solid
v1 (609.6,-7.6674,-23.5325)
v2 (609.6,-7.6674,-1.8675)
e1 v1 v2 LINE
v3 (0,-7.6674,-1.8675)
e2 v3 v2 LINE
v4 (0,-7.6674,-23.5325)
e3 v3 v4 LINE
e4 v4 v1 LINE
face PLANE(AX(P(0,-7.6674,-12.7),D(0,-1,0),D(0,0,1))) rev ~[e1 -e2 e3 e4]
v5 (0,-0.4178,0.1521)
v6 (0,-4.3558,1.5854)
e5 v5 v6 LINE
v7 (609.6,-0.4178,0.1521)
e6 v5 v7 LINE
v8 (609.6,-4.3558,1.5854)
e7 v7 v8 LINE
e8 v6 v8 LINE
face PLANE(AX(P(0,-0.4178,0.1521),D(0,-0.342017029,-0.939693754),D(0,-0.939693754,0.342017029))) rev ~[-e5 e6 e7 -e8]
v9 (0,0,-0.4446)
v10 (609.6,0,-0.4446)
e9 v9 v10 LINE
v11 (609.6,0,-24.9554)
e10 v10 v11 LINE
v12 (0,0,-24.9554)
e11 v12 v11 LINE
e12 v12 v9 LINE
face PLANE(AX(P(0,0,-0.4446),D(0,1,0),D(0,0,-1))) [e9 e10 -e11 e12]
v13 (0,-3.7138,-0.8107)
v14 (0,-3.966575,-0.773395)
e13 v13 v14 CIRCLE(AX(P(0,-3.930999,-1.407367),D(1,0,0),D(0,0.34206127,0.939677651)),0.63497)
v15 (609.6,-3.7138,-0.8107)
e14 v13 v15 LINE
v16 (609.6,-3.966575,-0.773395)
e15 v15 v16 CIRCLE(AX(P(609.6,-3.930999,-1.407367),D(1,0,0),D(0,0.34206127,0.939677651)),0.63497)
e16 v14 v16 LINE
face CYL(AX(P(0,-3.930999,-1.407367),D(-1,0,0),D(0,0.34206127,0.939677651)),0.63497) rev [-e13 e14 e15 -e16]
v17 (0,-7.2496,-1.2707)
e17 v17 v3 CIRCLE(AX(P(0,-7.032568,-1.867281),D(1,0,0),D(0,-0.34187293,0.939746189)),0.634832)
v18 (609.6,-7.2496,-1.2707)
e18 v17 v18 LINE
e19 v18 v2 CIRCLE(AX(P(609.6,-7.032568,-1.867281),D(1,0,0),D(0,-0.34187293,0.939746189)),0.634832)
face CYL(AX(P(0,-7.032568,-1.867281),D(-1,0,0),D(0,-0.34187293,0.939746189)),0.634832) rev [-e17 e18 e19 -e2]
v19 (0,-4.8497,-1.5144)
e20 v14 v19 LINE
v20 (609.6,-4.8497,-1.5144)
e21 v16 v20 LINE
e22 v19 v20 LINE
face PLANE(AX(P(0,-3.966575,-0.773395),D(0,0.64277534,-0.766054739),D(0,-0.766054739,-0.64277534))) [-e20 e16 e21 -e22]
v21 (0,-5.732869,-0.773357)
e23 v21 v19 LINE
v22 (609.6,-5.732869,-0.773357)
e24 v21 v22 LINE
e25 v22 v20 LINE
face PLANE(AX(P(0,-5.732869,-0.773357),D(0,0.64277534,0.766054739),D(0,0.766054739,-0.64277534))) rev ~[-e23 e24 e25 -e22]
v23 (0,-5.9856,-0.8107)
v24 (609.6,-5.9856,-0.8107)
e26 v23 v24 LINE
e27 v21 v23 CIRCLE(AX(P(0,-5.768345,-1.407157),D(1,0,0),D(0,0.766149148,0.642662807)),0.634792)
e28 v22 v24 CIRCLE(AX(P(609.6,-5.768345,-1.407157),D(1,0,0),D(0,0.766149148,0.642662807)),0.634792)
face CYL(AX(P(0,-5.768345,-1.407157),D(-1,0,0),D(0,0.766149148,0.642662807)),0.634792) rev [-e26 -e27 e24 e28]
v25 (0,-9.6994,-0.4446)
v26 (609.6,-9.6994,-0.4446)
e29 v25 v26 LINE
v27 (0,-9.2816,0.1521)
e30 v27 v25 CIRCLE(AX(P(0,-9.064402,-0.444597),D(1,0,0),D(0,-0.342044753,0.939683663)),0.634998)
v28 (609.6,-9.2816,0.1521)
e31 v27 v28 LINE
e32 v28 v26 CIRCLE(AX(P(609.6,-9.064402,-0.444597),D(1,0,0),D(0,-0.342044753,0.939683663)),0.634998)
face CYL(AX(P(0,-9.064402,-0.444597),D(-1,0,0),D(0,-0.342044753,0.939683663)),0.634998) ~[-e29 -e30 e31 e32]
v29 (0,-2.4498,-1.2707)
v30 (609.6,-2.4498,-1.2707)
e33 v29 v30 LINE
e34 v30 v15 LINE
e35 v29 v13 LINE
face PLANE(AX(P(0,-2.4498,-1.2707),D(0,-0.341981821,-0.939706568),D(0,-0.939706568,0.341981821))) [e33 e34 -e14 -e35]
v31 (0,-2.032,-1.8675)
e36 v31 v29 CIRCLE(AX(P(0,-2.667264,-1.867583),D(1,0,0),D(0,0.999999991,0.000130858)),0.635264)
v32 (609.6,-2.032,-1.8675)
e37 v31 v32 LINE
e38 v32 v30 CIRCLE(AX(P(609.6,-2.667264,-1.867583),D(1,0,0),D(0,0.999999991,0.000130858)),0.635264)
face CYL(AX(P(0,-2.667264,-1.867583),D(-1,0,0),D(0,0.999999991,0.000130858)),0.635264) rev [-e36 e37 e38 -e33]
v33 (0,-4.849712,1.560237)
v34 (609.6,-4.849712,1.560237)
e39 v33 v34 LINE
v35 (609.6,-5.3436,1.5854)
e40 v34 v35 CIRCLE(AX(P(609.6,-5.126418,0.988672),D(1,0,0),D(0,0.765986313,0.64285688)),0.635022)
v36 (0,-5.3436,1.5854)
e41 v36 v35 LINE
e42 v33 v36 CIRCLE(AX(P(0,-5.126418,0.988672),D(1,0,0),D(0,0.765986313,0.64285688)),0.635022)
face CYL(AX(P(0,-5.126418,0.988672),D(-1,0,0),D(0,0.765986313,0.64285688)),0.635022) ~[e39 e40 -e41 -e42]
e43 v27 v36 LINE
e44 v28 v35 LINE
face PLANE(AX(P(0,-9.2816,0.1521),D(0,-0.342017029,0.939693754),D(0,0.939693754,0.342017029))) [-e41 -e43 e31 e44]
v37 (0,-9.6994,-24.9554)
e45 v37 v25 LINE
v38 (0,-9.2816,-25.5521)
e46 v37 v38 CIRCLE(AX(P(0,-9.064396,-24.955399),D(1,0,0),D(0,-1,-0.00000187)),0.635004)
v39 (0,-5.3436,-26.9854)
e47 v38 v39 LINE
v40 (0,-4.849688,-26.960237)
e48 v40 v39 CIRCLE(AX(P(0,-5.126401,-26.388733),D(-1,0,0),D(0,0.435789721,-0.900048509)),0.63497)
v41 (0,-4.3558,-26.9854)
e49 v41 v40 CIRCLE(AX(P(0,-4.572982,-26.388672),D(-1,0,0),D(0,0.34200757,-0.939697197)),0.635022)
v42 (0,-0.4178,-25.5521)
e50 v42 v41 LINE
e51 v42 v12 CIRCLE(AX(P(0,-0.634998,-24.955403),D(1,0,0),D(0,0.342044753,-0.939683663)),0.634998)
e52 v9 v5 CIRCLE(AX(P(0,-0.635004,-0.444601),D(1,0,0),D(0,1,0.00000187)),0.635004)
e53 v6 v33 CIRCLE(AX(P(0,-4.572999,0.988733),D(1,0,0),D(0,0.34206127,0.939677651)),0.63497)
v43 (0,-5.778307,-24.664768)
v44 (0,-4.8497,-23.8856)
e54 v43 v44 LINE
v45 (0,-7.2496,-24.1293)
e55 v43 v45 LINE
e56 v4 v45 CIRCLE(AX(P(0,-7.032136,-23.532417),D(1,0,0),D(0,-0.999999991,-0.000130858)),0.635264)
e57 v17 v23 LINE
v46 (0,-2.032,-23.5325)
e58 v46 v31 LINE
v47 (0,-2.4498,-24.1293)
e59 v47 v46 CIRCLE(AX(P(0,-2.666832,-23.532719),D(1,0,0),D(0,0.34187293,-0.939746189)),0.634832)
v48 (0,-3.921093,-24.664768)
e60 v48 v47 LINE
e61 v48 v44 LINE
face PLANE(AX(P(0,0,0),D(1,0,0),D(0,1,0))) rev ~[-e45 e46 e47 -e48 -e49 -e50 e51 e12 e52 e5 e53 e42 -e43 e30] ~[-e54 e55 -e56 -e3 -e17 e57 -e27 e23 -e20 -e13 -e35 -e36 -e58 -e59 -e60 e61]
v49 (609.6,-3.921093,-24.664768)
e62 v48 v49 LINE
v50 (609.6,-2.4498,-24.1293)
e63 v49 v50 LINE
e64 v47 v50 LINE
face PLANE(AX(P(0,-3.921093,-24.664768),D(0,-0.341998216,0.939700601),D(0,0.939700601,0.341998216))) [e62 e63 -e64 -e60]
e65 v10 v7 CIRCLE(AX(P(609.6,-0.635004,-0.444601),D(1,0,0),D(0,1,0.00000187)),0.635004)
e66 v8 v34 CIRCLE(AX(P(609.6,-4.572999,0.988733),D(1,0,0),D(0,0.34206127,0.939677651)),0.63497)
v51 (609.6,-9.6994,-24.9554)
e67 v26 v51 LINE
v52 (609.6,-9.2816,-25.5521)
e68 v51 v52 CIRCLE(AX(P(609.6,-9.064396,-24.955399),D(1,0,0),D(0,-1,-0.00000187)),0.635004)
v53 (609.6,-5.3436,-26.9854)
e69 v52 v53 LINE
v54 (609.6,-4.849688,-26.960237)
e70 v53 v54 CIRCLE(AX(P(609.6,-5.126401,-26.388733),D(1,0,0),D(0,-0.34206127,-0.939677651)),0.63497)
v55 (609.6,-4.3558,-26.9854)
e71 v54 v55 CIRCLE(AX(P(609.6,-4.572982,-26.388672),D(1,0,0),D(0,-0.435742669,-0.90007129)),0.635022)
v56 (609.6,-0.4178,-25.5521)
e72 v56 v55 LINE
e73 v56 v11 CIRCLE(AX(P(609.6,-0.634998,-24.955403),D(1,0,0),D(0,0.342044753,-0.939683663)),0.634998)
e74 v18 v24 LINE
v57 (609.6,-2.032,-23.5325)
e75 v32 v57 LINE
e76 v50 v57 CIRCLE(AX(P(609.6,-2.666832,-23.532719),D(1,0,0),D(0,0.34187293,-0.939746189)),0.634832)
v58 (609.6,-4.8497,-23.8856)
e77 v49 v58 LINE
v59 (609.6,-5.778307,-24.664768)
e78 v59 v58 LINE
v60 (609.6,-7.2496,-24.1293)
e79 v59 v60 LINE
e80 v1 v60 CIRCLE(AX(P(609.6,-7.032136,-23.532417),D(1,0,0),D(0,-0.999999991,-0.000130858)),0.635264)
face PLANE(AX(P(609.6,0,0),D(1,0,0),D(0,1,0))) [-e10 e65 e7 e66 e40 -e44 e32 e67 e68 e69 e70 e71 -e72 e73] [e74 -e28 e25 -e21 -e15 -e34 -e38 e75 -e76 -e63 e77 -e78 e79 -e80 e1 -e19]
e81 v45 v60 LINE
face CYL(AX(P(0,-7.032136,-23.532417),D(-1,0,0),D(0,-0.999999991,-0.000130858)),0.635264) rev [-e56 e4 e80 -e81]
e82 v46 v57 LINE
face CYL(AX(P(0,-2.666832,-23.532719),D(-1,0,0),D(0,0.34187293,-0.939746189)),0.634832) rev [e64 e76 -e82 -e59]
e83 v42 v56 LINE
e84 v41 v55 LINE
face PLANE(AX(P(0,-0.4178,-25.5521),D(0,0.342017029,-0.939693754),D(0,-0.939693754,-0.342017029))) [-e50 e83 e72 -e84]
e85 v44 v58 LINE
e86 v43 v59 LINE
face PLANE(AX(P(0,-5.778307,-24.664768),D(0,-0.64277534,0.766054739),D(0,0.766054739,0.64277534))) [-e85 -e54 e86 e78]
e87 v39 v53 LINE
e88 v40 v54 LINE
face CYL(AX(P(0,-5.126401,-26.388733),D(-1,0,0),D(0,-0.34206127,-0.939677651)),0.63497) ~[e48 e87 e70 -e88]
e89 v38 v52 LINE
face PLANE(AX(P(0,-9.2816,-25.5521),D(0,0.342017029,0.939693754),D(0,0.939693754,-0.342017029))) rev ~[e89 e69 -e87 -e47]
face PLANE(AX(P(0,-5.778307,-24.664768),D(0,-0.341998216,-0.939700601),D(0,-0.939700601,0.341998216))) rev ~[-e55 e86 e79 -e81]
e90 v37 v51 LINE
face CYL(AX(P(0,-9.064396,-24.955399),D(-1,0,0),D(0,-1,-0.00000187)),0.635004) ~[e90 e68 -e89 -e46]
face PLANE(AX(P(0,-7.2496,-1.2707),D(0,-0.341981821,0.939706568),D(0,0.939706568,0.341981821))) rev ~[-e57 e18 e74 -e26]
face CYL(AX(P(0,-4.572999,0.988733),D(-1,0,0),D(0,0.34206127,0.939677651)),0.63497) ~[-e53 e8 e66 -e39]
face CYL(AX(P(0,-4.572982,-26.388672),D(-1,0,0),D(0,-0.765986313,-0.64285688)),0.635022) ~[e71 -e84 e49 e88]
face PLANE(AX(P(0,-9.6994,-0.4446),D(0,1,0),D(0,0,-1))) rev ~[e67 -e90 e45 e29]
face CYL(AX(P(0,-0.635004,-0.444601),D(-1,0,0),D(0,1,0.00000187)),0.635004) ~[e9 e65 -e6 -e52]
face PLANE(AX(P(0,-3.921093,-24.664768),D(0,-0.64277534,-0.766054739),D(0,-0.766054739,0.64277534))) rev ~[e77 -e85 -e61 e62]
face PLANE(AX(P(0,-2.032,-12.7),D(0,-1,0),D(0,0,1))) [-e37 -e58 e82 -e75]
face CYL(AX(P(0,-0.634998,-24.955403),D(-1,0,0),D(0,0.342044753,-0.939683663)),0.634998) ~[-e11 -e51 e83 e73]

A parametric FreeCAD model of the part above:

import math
import FreeCAD as App
import Part
import Sketcher
Q = App.Units.Quantity

doc = App.newDocument("Part")
body = doc.addObject("PartDesign::Body", "Body")

# Sketch on YZ plane
sketch1 = body.newObject("Sketcher::SketchObject", "Sketch")
sketch1.AttachmentSupport = (doc.getObject("YZ_Plane"), [""])
sketch1.MapMode = "FlatFace"
sketch1.addGeometry([
    Part.ArcOfCircle(Part.Circle(App.Vector(-0.635, -0.4446, 0), App.Vector(0, 0, 1), 0.635), math.radians(0), math.radians(69.998392)),  # 0
    Part.LineSegment(App.Vector(-0.4178, 0.1521, 0), App.Vector(-4.3558, 1.5854, 0)),  # 1
    Part.ArcOfCircle(Part.Circle(App.Vector(-4.573, 0.9887, 0), App.Vector(0, 0, 1), 0.635001), math.radians(69.998392), math.radians(115.834135)),  # 2
    Part.ArcOfCircle(Part.Circle(App.Vector(-5.1264, 0.9887, 0), App.Vector(0, 0, 1), 0.63499), math.radians(64.167787), math.radians(110.001608)),  # 3
    Part.LineSegment(App.Vector(-5.3436, 1.5854, 0), App.Vector(-9.2816, 0.1521, 0)),  # 4
    Part.ArcOfCircle(Part.Circle(App.Vector(-9.0644, -0.4446, 0), App.Vector(0, 0, 1), 0.635001), math.radians(110.001608), math.radians(180)),  # 5
    Part.LineSegment(App.Vector(-9.6994, -0.4446, 0), App.Vector(-9.6994, -24.9554, 0)),  # 6
    Part.ArcOfCircle(Part.Circle(App.Vector(-9.0644, -24.9554, 0), App.Vector(0, 0, 1), 0.635), math.radians(180), math.radians(249.998392)),  # 7
    Part.LineSegment(App.Vector(-9.2816, -25.5521, 0), App.Vector(-5.3436, -26.9854, 0)),  # 8
    Part.ArcOfCircle(Part.Circle(App.Vector(-5.1264, -26.3887, 0), App.Vector(0, 0, 1), 0.635001), math.radians(-110.001608), math.radians(-64.165865)),  # 9
    Part.ArcOfCircle(Part.Circle(App.Vector(-4.573, -26.3887, 0), App.Vector(0, 0, 1), 0.63499), math.radians(-115.832213), math.radians(-69.998392)),  # 10
    Part.LineSegment(App.Vector(-4.3558, -26.9854, 0), App.Vector(-0.4178, -25.5521, 0)),  # 11
    Part.ArcOfCircle(Part.Circle(App.Vector(-0.635, -24.9554, 0), App.Vector(0, 0, 1), 0.635001), math.radians(-69.998392), math.radians(0)),  # 12
    Part.LineSegment(App.Vector(0, -24.9554, 0), App.Vector(0, -0.4446, 0)),  # 13
    Part.LineSegment(App.Vector(-2.032, -1.8675, 0), App.Vector(-2.032, -23.5325, 0)),  # 14
    Part.ArcOfCircle(Part.Circle(App.Vector(-2.667, -23.5325, 0), App.Vector(0, 0, 1), 0.635095), math.radians(-70.001478), math.radians(0)),  # 15
    Part.LineSegment(App.Vector(-2.4498, -24.1293, 0), App.Vector(-3.921093, -24.664768, 0)),  # 16
    Part.LineSegment(App.Vector(-3.921093, -24.664768, 0), App.Vector(-4.8497, -23.8856, 0)),  # 17
    Part.LineSegment(App.Vector(-4.8497, -23.8856, 0), App.Vector(-5.778307, -24.664768, 0)),  # 18
    Part.LineSegment(App.Vector(-5.778307, -24.664768, 0), App.Vector(-7.2496, -24.1293, 0)),  # 19
    Part.ArcOfCircle(Part.Circle(App.Vector(-7.0324, -23.5325, 0), App.Vector(0, 0, 1), 0.635), math.radians(180), math.radians(250.001478)),  # 20
    Part.LineSegment(App.Vector(-7.6674, -23.5325, 0), App.Vector(-7.6674, -1.8675, 0)),  # 21
    Part.ArcOfCircle(Part.Circle(App.Vector(-7.0324, -1.8675, 0), App.Vector(0, 0, 1), 0.635095), math.radians(109.998522), math.radians(180)),  # 22
    Part.LineSegment(App.Vector(-7.2496, -1.2707, 0), App.Vector(-5.9856, -0.8107, 0)),  # 23
    Part.ArcOfCircle(Part.Circle(App.Vector(-5.7685, -1.4074, 0), App.Vector(0, 0, 1), 0.635067), math.radians(86.783556), math.radians(109.993129)),  # 24
    Part.LineSegment(App.Vector(-5.732869, -0.773357, 0), App.Vector(-4.8497, -1.5144, 0)),  # 25
    Part.LineSegment(App.Vector(-4.8497, -1.5144, 0), App.Vector(-3.966575, -0.773395, 0)),  # 26
    Part.ArcOfCircle(Part.Circle(App.Vector(-3.931, -1.4074, 0), App.Vector(0, 0, 1), 0.635001), math.radians(69.998392), math.radians(93.211622)),  # 27
    Part.LineSegment(App.Vector(-3.7138, -0.8107, 0), App.Vector(-2.4498, -1.2707, 0)),  # 28
    Part.ArcOfCircle(Part.Circle(App.Vector(-2.667, -1.8675, 0), App.Vector(0, 0, 1), 0.635), math.radians(0), math.radians(70.001478)),  # 29
], False)
sketch1.addConstraint([
    Sketcher.Constraint("Tangent", 0, 2, 1, 1),
    Sketcher.Constraint("Tangent", 1, 2, 2, 1),
    Sketcher.Constraint("Coincident", 2, 2, 3, 1),
    Sketcher.Constraint("Tangent", 3, 2, 4, 1),
    Sketcher.Constraint("Tangent", 4, 2, 5, 1),
    Sketcher.Constraint("Tangent", 5, 2, 6, 1),
    Sketcher.Constraint("Tangent", 6, 2, 7, 1),
    Sketcher.Constraint("Tangent", 7, 2, 8, 1),
    Sketcher.Constraint("Tangent", 8, 2, 9, 1),
    Sketcher.Constraint("Coincident", 9, 2, 10, 1),
    Sketcher.Constraint("Tangent", 10, 2, 11, 1),
    Sketcher.Constraint("Tangent", 11, 2, 12, 1),
    Sketcher.Constraint("Tangent", 12, 2, 13, 1),
    Sketcher.Constraint("Tangent", 13, 2, 0, 1),
    Sketcher.Constraint("Tangent", 14, 2, 15, 2),
    Sketcher.Constraint("Tangent", 15, 1, 16, 1),
    Sketcher.Constraint("Coincident", 16, 2, 17, 1),
    Sketcher.Constraint("Coincident", 17, 2, 18, 1),
    Sketcher.Constraint("Coincident", 18, 2, 19, 1),
    Sketcher.Constraint("Tangent", 19, 2, 20, 2),
    Sketcher.Constraint("Tangent", 20, 1, 21, 1),
    Sketcher.Constraint("Tangent", 21, 2, 22, 2),
    Sketcher.Constraint("Tangent", 22, 1, 23, 1),
    Sketcher.Constraint("Tangent", 23, 2, 24, 2),
    Sketcher.Constraint("Coincident", 24, 1, 25, 1),
    Sketcher.Constraint("Coincident", 25, 2, 26, 1),
    Sketcher.Constraint("Coincident", 26, 2, 27, 2),
    Sketcher.Constraint("Tangent", 27, 1, 28, 1),
    Sketcher.Constraint("Tangent", 28, 2, 29, 2),
    Sketcher.Constraint("Tangent", 29, 1, 14, 1),
    Sketcher.Constraint("Vertical", 6),
    Sketcher.Constraint("Vertical", 13),
    Sketcher.Constraint("Vertical", 14),
    Sketcher.Constraint("Vertical", 21),
    Sketcher.Constraint("Equal", 0, 2),
    Sketcher.Constraint("Equal", 2, 3),
    Sketcher.Constraint("Equal", 3, 5),
    Sketcher.Constraint("Equal", 5, 7),
    Sketcher.Constraint("Equal", 7, 9),
    Sketcher.Constraint("Equal", 9, 10),
    Sketcher.Constraint("Equal", 10, 12),
    Sketcher.Constraint("Equal", 12, 15),
    Sketcher.Constraint("Equal", 15, 20),
    Sketcher.Constraint("Equal", 20, 22),
    Sketcher.Constraint("Equal", 22, 24),
    Sketcher.Constraint("Equal", 24, 27),
    Sketcher.Constraint("Equal", 27, 29),
    Sketcher.Constraint("PointOnObject", 12, 2, -2),
    Sketcher.Constraint("Parallel", 1, 8),
    Sketcher.Constraint("Parallel", 4, 11),
    Sketcher.Constraint("Parallel", 11, 16),
    Sketcher.Constraint("Parallel", 8, 19),
    Sketcher.Constraint("Parallel", 16, 23),
    Sketcher.Constraint("Parallel", 17, 25),
    Sketcher.Constraint("Parallel", 18, 26),
    Sketcher.Constraint("Parallel", 19, 28),
    Sketcher.Constraint("Horizontal", 2, 3, 3, 3),
    Sketcher.Constraint("Horizontal", 0, 3, 5, 3),
    Sketcher.Constraint("Horizontal", 9, 3, 10, 3),
    Sketcher.Constraint("Horizontal", 7, 3, 12, 3),
    Sketcher.Constraint("Horizontal", 15, 3, 20, 3),
    Sketcher.Constraint("Horizontal", 24, 3, 27, 3),
    Sketcher.Constraint("Horizontal", 22, 3, 29, 3),
    Sketcher.Constraint("Horizontal", 1, 2, 3, 2),
    Sketcher.Constraint("Horizontal", 16, 2, 18, 2),
    Sketcher.Constraint("Horizontal", 24, 1, 26, 2),
    Sketcher.Constraint("Vertical", 3, 3, 9, 3),
    Sketcher.Constraint("Vertical", 9, 2, 17, 2),
    Sketcher.Constraint("Vertical", 17, 2, 25, 2),
    Sketcher.Constraint("Radius", 0, Q("0.025 in")),
    Sketcher.Constraint("DistanceX", 14, 2, -1, 1, Q("0.08 in")),
    Sketcher.Constraint("Angle", 1, Q("160.0002 deg")),
    Sketcher.Constraint("Angle", 17, Q("140.001 deg")),
    Sketcher.Constraint("DistanceY", 6, 2, 6, 1, Q("0.965 in")),
    Sketcher.Constraint("Distance", 1, Q("0.165 in")),
    Sketcher.Constraint("DistanceY", -1, 1, 0, 2, Q("0.006 in")),
    Sketcher.Constraint("DistanceX", 20, 3, 15, 3, Q("0.1718661 in")),
    Sketcher.Constraint("Distance", 25, Q("0.0454 in")),
    Sketcher.Constraint("DistanceY", 14, 2, 14, 1, Q("21.665 mm")),
    Sketcher.Constraint("DistanceX", 24, 3, -1, 1, Q("0.2271 in")),
    Sketcher.Constraint("DistanceY", 24, 3, -1, 1, Q("0.0554 in")),
    Sketcher.Constraint("DistanceX", 18, 2, -1, 1, Q("0.2275 in")),
])
pad1 = body.newObject("PartDesign::Pad", "Pad")
pad1.Profile = sketch1
pad1.Length = Q("24 in")

doc.recompute()
